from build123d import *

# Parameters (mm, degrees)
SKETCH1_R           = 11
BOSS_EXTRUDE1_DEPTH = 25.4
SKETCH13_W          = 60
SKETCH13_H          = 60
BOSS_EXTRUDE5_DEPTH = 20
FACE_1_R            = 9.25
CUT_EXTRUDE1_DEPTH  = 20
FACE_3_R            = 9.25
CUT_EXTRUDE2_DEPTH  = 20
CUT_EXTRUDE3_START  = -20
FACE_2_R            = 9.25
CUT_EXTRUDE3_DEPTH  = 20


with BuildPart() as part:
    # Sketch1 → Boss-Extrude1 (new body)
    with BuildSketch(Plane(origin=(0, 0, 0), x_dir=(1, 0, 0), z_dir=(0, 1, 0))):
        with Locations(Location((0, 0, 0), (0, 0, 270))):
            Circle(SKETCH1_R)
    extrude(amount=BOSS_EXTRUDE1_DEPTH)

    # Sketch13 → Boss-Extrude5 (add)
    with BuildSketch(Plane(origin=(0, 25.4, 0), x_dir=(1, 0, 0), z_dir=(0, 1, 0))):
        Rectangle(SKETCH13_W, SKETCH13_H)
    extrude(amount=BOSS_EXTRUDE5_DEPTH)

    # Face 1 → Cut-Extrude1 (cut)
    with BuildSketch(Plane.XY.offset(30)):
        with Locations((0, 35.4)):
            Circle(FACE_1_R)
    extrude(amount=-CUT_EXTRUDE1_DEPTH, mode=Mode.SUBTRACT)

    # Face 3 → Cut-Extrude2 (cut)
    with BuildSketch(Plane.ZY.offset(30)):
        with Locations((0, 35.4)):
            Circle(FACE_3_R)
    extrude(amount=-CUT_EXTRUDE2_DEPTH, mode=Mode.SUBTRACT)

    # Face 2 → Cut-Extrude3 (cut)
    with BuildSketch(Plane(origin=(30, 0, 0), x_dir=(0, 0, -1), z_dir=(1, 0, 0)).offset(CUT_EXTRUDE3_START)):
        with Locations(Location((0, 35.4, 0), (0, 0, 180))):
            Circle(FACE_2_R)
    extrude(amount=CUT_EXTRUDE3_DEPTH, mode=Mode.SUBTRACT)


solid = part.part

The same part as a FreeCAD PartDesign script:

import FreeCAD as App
import Part
import Sketcher

doc = App.newDocument("Part")
body = doc.addObject("PartDesign::Body", "Body")

# Sketch on XZ plane
sketch1 = body.newObject("Sketcher::SketchObject", "Sketch")
sketch1.AttachmentSupport = (doc.getObject("XZ_Plane"), [""])
sketch1.MapMode = "FlatFace"
sketch1.addGeometry(Part.Circle(App.Vector(0, 0, 0), App.Vector(0, 0, 1), 11), False)
sketch1.addConstraint([
    Sketcher.Constraint("Coincident", 0, 3, -1, 1),
    Sketcher.Constraint("Diameter", 0, 22.0),
])
pad1 = body.newObject("PartDesign::Pad", "Pad")
pad1.Profile = sketch1
pad1.Length = 25.4
pad1.Reversed = True

# Sketch on XZ plane
sketch2 = body.newObject("Sketcher::SketchObject", "Sketch001")
sketch2.AttachmentSupport = (doc.getObject("XZ_Plane"), [""])
sketch2.MapMode = "FlatFace"
sketch2.AttachmentOffset = App.Placement(App.Vector(0, 0, -25.4), App.Rotation())
sketch2.addGeometry([
    Part.LineSegment(App.Vector(-30, -30, 0), App.Vector(-30, 30, 0)),
    Part.LineSegment(App.Vector(-30, 30, 0), App.Vector(30, 30, 0)),
    Part.LineSegment(App.Vector(30, 30, 0), App.Vector(30, -30, 0)),
    Part.LineSegment(App.Vector(30, -30, 0), App.Vector(-30, -30, 0)),
], False)
sketch2.addConstraint([
    Sketcher.Constraint("Coincident", 0, 2, 1, 1),
    Sketcher.Constraint("Coincident", 1, 2, 2, 1),
    Sketcher.Constraint("Coincident", 2, 2, 3, 1),
    Sketcher.Constraint("Coincident", 3, 2, 0, 1),
    Sketcher.Constraint("Vertical", 0),
    Sketcher.Constraint("Horizontal", 1),
    Sketcher.Constraint("Vertical", 2),
    Sketcher.Constraint("Horizontal", 3),
    Sketcher.Constraint("Symmetric", 0, 2, 2, 2, -1, 1),
    Sketcher.Constraint("Equal", 3, 0),
    Sketcher.Constraint("DistanceX", 1, 1, 1, 2, 60.0),
])
pad2 = body.newObject("PartDesign::Pad", "Pad001")
pad2.Profile = sketch2
pad2.Length = 20
pad2.Reversed = True

# Sketch on XY plane
sketch3 = body.newObject("Sketcher::SketchObject", "Sketch002")
sketch3.AttachmentSupport = (doc.getObject("XY_Plane"), [""])
sketch3.MapMode = "FlatFace"
sketch3.AttachmentOffset = App.Placement(App.Vector(0, 0, 30), App.Rotation())
sketch3.addGeometry(Part.Circle(App.Vector(0, 35, 0), App.Vector(0, 0, 1), 9), False)
sketch3.addConstraint([
    Sketcher.Constraint("PointOnObject", 0, 3, -2),
    Sketcher.Constraint("Diameter", 0, 18.5),
    Sketcher.Constraint("DistanceY", -1, 1, 0, 3, 35.4),
])
pocket1 = body.newObject("PartDesign::Pocket", "Pocket")
pocket1.Profile = sketch3
pocket1.Length = 20

# Sketch on YZ plane
sketch4 = body.newObject("Sketcher::SketchObject", "Sketch003")
sketch4.AttachmentSupport = (doc.getObject("YZ_Plane"), [""])
sketch4.MapMode = "FlatFace"
sketch4.AttachmentOffset = App.Placement(App.Vector(0, 0, -30), App.Rotation())
sketch4.addGeometry(Part.Circle(App.Vector(35, 0, 0), App.Vector(0, 0, 1), 9), False)
sketch4.addConstraint([
    Sketcher.Constraint("PointOnObject", 0, 3, -1),
    Sketcher.Constraint("Diameter", 0, 18.5),
    Sketcher.Constraint("DistanceX", -1, 1, 0, 3, 35.4),
])
pocket2 = body.newObject("PartDesign::Pocket", "Pocket001")
pocket2.Profile = sketch4
pocket2.Length = 20
pocket2.Reversed = True

# Sketch on YZ plane
sketch5 = body.newObject("Sketcher::SketchObject", "Sketch004")
sketch5.AttachmentSupport = (doc.getObject("YZ_Plane"), [""])
sketch5.MapMode = "FlatFace"
sketch5.AttachmentOffset = App.Placement(App.Vector(0, 0, 10), App.Rotation())
sketch5.addGeometry(Part.Circle(App.Vector(35, 0, 0), App.Vector(0, 0, 1), 9), False)
sketch5.addConstraint([
    Sketcher.Constraint("PointOnObject", 0, 3, -1),
    Sketcher.Constraint("Diameter", 0, 18.5),
    Sketcher.Constraint("DistanceX", -1, 1, 0, 3, 35.4),
])
pocket3 = body.newObject("PartDesign::Pocket", "Pocket002")
pocket3.Profile = sketch5
pocket3.Length = 20
pocket3.Reversed = True

doc.recompute()
